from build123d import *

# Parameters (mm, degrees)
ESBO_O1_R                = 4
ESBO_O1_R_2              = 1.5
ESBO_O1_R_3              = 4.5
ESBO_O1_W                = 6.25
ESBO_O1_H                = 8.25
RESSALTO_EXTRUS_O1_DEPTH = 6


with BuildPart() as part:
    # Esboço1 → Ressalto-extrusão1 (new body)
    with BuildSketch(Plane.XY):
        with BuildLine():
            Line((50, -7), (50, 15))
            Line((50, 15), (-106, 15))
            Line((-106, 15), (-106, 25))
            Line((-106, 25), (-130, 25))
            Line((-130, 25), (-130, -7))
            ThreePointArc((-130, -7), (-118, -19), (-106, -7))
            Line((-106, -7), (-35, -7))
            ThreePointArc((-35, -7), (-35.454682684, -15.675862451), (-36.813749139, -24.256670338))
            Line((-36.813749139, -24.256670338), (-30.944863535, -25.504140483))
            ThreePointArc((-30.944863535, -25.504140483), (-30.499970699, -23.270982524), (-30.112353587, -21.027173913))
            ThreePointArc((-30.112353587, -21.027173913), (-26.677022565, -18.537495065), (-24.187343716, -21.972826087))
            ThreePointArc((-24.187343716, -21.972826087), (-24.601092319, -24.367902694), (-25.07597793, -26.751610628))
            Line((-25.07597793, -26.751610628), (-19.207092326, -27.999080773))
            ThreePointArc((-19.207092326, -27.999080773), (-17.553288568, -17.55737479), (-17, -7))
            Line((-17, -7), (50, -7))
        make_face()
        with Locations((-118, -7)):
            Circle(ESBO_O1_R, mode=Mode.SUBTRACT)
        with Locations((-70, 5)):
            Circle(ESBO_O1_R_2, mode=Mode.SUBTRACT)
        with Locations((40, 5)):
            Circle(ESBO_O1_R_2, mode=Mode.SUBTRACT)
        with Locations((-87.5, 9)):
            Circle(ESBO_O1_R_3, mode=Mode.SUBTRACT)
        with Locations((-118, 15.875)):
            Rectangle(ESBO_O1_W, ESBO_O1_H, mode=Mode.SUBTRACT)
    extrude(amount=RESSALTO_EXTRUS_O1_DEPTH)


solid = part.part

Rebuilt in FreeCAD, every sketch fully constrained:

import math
import FreeCAD as App
import Part
import Sketcher
from FreeCAD import Vector
Q = App.Units.Quantity


def add_polygon(sketch, points):
    """Adds a closed chain of lines whose ends are joined by coincident constraints."""
    first, n = sketch.GeometryCount, len(points)
    for a, b in zip(points, points[1:] + points[:1]):
        sketch.addGeometry(Part.LineSegment(App.Vector(*a, 0), App.Vector(*b, 0)), False)
    for i in range(n):
        sketch.addConstraint(Sketcher.Constraint("Coincident", first + i, 2, first + (i + 1) % n, 1))

doc = App.newDocument("Part")
body = doc.addObject("PartDesign::Body", "Body")

# Sketch on XY plane
sketch1 = doc.addObject("Sketcher::SketchObject", "Sketch")
body.addObject(sketch1)
sketch1.AttachmentSupport = (doc.XY_Plane, [""])
sketch1.MapMode = "FlatFace"
sketch1.addGeometry(Part.LineSegment(Vector(50, -7, 0), Vector(50, 15, 0)), False)  # 0
sketch1.addGeometry(Part.LineSegment(Vector(50, 15, 0), Vector(-106, 15, 0)), False)  # 1
sketch1.addGeometry(Part.LineSegment(Vector(-106, 15, 0), Vector(-106, 25, 0)), False)  # 2
sketch1.addGeometry(Part.LineSegment(Vector(-106, 25, 0), Vector(-130, 25, 0)), False)  # 3
sketch1.addGeometry(Part.LineSegment(Vector(-130, 25, 0), Vector(-130, -7, 0)), False)  # 4
sketch1.addGeometry(Part.ArcOfCircle(Part.Circle(Vector(-118, -7, 0), Vector(0, 0, 1), 12), math.radians(180), math.radians(360)), False)  # 5
sketch1.addGeometry(Part.LineSegment(Vector(-106, -7, 0), Vector(-35, -7, 0)), False)  # 6
sketch1.addGeometry(Part.ArcOfCircle(Part.Circle(Vector(-118, -7, 0), Vector(0, 0, 1), 83), math.radians(-12), math.radians(0)), False)  # 7
sketch1.addGeometry(Part.LineSegment(Vector(-36.813749, -24.25667, 0), Vector(-30.944864, -25.50414, 0)), False)  # 8
sketch1.addGeometry(Part.ArcOfCircle(Part.Circle(Vector(-118, -7, 0), Vector(0, 0, 1), 89), math.radians(-12), math.radians(-9.068124)), False)  # 9
sketch1.addGeometry(Part.ArcOfCircle(Part.Circle(Vector(-27.149849, -21.5, 0), Vector(0, 0, 1), 3), math.radians(-9.068124), math.radians(170.931876)), False)  # 10
sketch1.addGeometry(Part.ArcOfCircle(Part.Circle(Vector(-118.000001, -7, 0), Vector(0, 0, 1), 95.000001), math.radians(-12), math.radians(-9.068124)), False)  # 11
sketch1.addGeometry(Part.LineSegment(Vector(-25.075978, -26.751611, 0), Vector(-19.207092, -27.999081, 0)), False)  # 12
sketch1.addGeometry(Part.ArcOfCircle(Part.Circle(Vector(-118, -7, 0), Vector(0, 0, 1), 101), math.radians(-12), math.radians(0)), False)  # 13
sketch1.addGeometry(Part.LineSegment(Vector(-17, -7, 0), Vector(50, -7, 0)), False)  # 14
sketch1.addGeometry(Part.Circle(Vector(-118, -7, 0), Vector(0, 0, 1), 4), False)  # 15
sketch1.addGeometry(Part.Circle(Vector(-87.5, 9, 0), Vector(0, 0, 1), 4.5), False)  # 16
sketch1.addGeometry(Part.Circle(Vector(-70, 5, 0), Vector(0, 0, 1), 1.5), False)  # 17
add_polygon(sketch1, [(-114.875, 11.75), (-121.125, 11.75), (-121.125, 20), (-114.875, 20)])  # lines 18-21
sketch1.addGeometry(Part.Circle(Vector(40, 5, 0), Vector(0, 0, 1), 1.5), False)  # 22
sketch1.addConstraint([
    Sketcher.Constraint("Coincident", 0, 2, 1, 1),
    Sketcher.Constraint("Coincident", 1, 2, 2, 1),
    Sketcher.Constraint("Coincident", 2, 2, 3, 1),
    Sketcher.Constraint("Coincident", 3, 2, 4, 1),
    Sketcher.Constraint("Tangent", 4, 2, 5, 1),
    Sketcher.Constraint("Coincident", 5, 2, 6, 1),
    Sketcher.Constraint("Coincident", 6, 2, 7, 2),
    Sketcher.Constraint("Coincident", 7, 1, 8, 1),
    Sketcher.Constraint("Coincident", 8, 2, 9, 1),
    Sketcher.Constraint("Tangent", 9, 2, 10, 2),
    Sketcher.Constraint("Tangent", 10, 1, 11, 2),
    Sketcher.Constraint("Coincident", 11, 1, 12, 1),
    Sketcher.Constraint("Coincident", 12, 2, 13, 1),
    Sketcher.Constraint("Coincident", 13, 2, 14, 1),
    Sketcher.Constraint("Coincident", 14, 2, 0, 1),
    Sketcher.Constraint("Vertical", 0),
    Sketcher.Constraint("Horizontal", 1),
    Sketcher.Constraint("Vertical", 2),
    Sketcher.Constraint("Horizontal", 3),
    Sketcher.Constraint("Vertical", 4),
    Sketcher.Constraint("Horizontal", 6),
    Sketcher.Constraint("Horizontal", 14),
    Sketcher.Constraint("Horizontal", 18),
    Sketcher.Constraint("Vertical", 19),
    Sketcher.Constraint("Horizontal", 20),
    Sketcher.Constraint("Vertical", 21),
    Sketcher.Constraint("Coincident", 7, 3, 5, 3),
    Sketcher.Constraint("Coincident", 9, 3, 5, 3),
    Sketcher.Constraint("Coincident", 11, 3, 5, 3),
    Sketcher.Constraint("Coincident", 13, 3, 5, 3),
    Sketcher.Constraint("Coincident", 15, 3, 5, 3),
    Sketcher.Constraint("Equal", 17, 22),
    Sketcher.Constraint("Parallel", 8, 12),
    Sketcher.Constraint("Horizontal", 17, 3, 22, 3),
    Sketcher.Constraint("Horizontal", 4, 2, 5, 2),
    Sketcher.Constraint("Horizontal", 6, 2, 13, 2),
    Sketcher.Constraint("Vertical", 2, 2, 5, 2),
    Sketcher.Constraint("Equal", 8, 12),
    Sketcher.Constraint("Diameter", 15, Q("8 mm")),
    Sketcher.Constraint("Diameter", 16, Q("9 mm")),
    Sketcher.Constraint("Diameter", 17, Q("3 mm")),
    Sketcher.Constraint("Radius", 5, Q("12 mm")),
    Sketcher.Constraint("Radius", 7, Q("83 mm")),
    Sketcher.Constraint("Radius", 9, Q("89 mm")),
    Sketcher.Constraint("Radius", 10, Q("3 mm")),
    Sketcher.Constraint("DistanceX", 1, 2, 1, 1, Q("156 mm")),
    Sketcher.Constraint("DistanceY", 0, 1, 0, 2, Q("22 mm")),
    Sketcher.Constraint("DistanceY", 2, 1, 2, 2, Q("10 mm")),
    Sketcher.Constraint("Angle", 8, Q("-12 deg")),
    Sketcher.Constraint("DistanceX", 5, 3, -1, 1, Q("118 mm")),
    Sketcher.Constraint("DistanceY", 5, 3, -1, 1, Q("7 mm")),
    Sketcher.Constraint("DistanceY", -1, 1, 16, 3, Q("9 mm")),
    Sketcher.Constraint("DistanceX", 17, 3, -1, 1, Q("70 mm")),
    Sketcher.Constraint("DistanceY", -1, 1, 17, 3, Q("5 mm")),
    Sketcher.Constraint("DistanceX", -1, 1, 22, 3, Q("40 mm")),
    Sketcher.Constraint("DistanceY", -1, 1, 19, 2, Q("20 mm")),
    Sketcher.Constraint("DistanceX", 18, 2, 18, 1, Q("6.25 mm")),
    Sketcher.Constraint("DistanceY", 19, 1, 19, 2, Q("8.25 mm")),
    Sketcher.Constraint("DistanceY", 10, 3, -1, 1, Q("21.5 mm")),
    Sketcher.Constraint("DistanceX", 16, 3, -1, 1, Q("87.5 mm")),
    Sketcher.Constraint("DistanceX", 18, 2, -1, 1, Q("121.125 mm")),
    Sketcher.Constraint("DistanceX", 7, 1, 10, 3, Q("9.6639 mm")),
    Sketcher.Constraint("DistanceY", 11, 1, -1, 1, Q("26.751611 mm")),
])
pad1 = doc.addObject("PartDesign::Pad", "Pad")
body.addObject(pad1)
pad1.Profile = sketch1
pad1.Length = 6

doc.recompute()
